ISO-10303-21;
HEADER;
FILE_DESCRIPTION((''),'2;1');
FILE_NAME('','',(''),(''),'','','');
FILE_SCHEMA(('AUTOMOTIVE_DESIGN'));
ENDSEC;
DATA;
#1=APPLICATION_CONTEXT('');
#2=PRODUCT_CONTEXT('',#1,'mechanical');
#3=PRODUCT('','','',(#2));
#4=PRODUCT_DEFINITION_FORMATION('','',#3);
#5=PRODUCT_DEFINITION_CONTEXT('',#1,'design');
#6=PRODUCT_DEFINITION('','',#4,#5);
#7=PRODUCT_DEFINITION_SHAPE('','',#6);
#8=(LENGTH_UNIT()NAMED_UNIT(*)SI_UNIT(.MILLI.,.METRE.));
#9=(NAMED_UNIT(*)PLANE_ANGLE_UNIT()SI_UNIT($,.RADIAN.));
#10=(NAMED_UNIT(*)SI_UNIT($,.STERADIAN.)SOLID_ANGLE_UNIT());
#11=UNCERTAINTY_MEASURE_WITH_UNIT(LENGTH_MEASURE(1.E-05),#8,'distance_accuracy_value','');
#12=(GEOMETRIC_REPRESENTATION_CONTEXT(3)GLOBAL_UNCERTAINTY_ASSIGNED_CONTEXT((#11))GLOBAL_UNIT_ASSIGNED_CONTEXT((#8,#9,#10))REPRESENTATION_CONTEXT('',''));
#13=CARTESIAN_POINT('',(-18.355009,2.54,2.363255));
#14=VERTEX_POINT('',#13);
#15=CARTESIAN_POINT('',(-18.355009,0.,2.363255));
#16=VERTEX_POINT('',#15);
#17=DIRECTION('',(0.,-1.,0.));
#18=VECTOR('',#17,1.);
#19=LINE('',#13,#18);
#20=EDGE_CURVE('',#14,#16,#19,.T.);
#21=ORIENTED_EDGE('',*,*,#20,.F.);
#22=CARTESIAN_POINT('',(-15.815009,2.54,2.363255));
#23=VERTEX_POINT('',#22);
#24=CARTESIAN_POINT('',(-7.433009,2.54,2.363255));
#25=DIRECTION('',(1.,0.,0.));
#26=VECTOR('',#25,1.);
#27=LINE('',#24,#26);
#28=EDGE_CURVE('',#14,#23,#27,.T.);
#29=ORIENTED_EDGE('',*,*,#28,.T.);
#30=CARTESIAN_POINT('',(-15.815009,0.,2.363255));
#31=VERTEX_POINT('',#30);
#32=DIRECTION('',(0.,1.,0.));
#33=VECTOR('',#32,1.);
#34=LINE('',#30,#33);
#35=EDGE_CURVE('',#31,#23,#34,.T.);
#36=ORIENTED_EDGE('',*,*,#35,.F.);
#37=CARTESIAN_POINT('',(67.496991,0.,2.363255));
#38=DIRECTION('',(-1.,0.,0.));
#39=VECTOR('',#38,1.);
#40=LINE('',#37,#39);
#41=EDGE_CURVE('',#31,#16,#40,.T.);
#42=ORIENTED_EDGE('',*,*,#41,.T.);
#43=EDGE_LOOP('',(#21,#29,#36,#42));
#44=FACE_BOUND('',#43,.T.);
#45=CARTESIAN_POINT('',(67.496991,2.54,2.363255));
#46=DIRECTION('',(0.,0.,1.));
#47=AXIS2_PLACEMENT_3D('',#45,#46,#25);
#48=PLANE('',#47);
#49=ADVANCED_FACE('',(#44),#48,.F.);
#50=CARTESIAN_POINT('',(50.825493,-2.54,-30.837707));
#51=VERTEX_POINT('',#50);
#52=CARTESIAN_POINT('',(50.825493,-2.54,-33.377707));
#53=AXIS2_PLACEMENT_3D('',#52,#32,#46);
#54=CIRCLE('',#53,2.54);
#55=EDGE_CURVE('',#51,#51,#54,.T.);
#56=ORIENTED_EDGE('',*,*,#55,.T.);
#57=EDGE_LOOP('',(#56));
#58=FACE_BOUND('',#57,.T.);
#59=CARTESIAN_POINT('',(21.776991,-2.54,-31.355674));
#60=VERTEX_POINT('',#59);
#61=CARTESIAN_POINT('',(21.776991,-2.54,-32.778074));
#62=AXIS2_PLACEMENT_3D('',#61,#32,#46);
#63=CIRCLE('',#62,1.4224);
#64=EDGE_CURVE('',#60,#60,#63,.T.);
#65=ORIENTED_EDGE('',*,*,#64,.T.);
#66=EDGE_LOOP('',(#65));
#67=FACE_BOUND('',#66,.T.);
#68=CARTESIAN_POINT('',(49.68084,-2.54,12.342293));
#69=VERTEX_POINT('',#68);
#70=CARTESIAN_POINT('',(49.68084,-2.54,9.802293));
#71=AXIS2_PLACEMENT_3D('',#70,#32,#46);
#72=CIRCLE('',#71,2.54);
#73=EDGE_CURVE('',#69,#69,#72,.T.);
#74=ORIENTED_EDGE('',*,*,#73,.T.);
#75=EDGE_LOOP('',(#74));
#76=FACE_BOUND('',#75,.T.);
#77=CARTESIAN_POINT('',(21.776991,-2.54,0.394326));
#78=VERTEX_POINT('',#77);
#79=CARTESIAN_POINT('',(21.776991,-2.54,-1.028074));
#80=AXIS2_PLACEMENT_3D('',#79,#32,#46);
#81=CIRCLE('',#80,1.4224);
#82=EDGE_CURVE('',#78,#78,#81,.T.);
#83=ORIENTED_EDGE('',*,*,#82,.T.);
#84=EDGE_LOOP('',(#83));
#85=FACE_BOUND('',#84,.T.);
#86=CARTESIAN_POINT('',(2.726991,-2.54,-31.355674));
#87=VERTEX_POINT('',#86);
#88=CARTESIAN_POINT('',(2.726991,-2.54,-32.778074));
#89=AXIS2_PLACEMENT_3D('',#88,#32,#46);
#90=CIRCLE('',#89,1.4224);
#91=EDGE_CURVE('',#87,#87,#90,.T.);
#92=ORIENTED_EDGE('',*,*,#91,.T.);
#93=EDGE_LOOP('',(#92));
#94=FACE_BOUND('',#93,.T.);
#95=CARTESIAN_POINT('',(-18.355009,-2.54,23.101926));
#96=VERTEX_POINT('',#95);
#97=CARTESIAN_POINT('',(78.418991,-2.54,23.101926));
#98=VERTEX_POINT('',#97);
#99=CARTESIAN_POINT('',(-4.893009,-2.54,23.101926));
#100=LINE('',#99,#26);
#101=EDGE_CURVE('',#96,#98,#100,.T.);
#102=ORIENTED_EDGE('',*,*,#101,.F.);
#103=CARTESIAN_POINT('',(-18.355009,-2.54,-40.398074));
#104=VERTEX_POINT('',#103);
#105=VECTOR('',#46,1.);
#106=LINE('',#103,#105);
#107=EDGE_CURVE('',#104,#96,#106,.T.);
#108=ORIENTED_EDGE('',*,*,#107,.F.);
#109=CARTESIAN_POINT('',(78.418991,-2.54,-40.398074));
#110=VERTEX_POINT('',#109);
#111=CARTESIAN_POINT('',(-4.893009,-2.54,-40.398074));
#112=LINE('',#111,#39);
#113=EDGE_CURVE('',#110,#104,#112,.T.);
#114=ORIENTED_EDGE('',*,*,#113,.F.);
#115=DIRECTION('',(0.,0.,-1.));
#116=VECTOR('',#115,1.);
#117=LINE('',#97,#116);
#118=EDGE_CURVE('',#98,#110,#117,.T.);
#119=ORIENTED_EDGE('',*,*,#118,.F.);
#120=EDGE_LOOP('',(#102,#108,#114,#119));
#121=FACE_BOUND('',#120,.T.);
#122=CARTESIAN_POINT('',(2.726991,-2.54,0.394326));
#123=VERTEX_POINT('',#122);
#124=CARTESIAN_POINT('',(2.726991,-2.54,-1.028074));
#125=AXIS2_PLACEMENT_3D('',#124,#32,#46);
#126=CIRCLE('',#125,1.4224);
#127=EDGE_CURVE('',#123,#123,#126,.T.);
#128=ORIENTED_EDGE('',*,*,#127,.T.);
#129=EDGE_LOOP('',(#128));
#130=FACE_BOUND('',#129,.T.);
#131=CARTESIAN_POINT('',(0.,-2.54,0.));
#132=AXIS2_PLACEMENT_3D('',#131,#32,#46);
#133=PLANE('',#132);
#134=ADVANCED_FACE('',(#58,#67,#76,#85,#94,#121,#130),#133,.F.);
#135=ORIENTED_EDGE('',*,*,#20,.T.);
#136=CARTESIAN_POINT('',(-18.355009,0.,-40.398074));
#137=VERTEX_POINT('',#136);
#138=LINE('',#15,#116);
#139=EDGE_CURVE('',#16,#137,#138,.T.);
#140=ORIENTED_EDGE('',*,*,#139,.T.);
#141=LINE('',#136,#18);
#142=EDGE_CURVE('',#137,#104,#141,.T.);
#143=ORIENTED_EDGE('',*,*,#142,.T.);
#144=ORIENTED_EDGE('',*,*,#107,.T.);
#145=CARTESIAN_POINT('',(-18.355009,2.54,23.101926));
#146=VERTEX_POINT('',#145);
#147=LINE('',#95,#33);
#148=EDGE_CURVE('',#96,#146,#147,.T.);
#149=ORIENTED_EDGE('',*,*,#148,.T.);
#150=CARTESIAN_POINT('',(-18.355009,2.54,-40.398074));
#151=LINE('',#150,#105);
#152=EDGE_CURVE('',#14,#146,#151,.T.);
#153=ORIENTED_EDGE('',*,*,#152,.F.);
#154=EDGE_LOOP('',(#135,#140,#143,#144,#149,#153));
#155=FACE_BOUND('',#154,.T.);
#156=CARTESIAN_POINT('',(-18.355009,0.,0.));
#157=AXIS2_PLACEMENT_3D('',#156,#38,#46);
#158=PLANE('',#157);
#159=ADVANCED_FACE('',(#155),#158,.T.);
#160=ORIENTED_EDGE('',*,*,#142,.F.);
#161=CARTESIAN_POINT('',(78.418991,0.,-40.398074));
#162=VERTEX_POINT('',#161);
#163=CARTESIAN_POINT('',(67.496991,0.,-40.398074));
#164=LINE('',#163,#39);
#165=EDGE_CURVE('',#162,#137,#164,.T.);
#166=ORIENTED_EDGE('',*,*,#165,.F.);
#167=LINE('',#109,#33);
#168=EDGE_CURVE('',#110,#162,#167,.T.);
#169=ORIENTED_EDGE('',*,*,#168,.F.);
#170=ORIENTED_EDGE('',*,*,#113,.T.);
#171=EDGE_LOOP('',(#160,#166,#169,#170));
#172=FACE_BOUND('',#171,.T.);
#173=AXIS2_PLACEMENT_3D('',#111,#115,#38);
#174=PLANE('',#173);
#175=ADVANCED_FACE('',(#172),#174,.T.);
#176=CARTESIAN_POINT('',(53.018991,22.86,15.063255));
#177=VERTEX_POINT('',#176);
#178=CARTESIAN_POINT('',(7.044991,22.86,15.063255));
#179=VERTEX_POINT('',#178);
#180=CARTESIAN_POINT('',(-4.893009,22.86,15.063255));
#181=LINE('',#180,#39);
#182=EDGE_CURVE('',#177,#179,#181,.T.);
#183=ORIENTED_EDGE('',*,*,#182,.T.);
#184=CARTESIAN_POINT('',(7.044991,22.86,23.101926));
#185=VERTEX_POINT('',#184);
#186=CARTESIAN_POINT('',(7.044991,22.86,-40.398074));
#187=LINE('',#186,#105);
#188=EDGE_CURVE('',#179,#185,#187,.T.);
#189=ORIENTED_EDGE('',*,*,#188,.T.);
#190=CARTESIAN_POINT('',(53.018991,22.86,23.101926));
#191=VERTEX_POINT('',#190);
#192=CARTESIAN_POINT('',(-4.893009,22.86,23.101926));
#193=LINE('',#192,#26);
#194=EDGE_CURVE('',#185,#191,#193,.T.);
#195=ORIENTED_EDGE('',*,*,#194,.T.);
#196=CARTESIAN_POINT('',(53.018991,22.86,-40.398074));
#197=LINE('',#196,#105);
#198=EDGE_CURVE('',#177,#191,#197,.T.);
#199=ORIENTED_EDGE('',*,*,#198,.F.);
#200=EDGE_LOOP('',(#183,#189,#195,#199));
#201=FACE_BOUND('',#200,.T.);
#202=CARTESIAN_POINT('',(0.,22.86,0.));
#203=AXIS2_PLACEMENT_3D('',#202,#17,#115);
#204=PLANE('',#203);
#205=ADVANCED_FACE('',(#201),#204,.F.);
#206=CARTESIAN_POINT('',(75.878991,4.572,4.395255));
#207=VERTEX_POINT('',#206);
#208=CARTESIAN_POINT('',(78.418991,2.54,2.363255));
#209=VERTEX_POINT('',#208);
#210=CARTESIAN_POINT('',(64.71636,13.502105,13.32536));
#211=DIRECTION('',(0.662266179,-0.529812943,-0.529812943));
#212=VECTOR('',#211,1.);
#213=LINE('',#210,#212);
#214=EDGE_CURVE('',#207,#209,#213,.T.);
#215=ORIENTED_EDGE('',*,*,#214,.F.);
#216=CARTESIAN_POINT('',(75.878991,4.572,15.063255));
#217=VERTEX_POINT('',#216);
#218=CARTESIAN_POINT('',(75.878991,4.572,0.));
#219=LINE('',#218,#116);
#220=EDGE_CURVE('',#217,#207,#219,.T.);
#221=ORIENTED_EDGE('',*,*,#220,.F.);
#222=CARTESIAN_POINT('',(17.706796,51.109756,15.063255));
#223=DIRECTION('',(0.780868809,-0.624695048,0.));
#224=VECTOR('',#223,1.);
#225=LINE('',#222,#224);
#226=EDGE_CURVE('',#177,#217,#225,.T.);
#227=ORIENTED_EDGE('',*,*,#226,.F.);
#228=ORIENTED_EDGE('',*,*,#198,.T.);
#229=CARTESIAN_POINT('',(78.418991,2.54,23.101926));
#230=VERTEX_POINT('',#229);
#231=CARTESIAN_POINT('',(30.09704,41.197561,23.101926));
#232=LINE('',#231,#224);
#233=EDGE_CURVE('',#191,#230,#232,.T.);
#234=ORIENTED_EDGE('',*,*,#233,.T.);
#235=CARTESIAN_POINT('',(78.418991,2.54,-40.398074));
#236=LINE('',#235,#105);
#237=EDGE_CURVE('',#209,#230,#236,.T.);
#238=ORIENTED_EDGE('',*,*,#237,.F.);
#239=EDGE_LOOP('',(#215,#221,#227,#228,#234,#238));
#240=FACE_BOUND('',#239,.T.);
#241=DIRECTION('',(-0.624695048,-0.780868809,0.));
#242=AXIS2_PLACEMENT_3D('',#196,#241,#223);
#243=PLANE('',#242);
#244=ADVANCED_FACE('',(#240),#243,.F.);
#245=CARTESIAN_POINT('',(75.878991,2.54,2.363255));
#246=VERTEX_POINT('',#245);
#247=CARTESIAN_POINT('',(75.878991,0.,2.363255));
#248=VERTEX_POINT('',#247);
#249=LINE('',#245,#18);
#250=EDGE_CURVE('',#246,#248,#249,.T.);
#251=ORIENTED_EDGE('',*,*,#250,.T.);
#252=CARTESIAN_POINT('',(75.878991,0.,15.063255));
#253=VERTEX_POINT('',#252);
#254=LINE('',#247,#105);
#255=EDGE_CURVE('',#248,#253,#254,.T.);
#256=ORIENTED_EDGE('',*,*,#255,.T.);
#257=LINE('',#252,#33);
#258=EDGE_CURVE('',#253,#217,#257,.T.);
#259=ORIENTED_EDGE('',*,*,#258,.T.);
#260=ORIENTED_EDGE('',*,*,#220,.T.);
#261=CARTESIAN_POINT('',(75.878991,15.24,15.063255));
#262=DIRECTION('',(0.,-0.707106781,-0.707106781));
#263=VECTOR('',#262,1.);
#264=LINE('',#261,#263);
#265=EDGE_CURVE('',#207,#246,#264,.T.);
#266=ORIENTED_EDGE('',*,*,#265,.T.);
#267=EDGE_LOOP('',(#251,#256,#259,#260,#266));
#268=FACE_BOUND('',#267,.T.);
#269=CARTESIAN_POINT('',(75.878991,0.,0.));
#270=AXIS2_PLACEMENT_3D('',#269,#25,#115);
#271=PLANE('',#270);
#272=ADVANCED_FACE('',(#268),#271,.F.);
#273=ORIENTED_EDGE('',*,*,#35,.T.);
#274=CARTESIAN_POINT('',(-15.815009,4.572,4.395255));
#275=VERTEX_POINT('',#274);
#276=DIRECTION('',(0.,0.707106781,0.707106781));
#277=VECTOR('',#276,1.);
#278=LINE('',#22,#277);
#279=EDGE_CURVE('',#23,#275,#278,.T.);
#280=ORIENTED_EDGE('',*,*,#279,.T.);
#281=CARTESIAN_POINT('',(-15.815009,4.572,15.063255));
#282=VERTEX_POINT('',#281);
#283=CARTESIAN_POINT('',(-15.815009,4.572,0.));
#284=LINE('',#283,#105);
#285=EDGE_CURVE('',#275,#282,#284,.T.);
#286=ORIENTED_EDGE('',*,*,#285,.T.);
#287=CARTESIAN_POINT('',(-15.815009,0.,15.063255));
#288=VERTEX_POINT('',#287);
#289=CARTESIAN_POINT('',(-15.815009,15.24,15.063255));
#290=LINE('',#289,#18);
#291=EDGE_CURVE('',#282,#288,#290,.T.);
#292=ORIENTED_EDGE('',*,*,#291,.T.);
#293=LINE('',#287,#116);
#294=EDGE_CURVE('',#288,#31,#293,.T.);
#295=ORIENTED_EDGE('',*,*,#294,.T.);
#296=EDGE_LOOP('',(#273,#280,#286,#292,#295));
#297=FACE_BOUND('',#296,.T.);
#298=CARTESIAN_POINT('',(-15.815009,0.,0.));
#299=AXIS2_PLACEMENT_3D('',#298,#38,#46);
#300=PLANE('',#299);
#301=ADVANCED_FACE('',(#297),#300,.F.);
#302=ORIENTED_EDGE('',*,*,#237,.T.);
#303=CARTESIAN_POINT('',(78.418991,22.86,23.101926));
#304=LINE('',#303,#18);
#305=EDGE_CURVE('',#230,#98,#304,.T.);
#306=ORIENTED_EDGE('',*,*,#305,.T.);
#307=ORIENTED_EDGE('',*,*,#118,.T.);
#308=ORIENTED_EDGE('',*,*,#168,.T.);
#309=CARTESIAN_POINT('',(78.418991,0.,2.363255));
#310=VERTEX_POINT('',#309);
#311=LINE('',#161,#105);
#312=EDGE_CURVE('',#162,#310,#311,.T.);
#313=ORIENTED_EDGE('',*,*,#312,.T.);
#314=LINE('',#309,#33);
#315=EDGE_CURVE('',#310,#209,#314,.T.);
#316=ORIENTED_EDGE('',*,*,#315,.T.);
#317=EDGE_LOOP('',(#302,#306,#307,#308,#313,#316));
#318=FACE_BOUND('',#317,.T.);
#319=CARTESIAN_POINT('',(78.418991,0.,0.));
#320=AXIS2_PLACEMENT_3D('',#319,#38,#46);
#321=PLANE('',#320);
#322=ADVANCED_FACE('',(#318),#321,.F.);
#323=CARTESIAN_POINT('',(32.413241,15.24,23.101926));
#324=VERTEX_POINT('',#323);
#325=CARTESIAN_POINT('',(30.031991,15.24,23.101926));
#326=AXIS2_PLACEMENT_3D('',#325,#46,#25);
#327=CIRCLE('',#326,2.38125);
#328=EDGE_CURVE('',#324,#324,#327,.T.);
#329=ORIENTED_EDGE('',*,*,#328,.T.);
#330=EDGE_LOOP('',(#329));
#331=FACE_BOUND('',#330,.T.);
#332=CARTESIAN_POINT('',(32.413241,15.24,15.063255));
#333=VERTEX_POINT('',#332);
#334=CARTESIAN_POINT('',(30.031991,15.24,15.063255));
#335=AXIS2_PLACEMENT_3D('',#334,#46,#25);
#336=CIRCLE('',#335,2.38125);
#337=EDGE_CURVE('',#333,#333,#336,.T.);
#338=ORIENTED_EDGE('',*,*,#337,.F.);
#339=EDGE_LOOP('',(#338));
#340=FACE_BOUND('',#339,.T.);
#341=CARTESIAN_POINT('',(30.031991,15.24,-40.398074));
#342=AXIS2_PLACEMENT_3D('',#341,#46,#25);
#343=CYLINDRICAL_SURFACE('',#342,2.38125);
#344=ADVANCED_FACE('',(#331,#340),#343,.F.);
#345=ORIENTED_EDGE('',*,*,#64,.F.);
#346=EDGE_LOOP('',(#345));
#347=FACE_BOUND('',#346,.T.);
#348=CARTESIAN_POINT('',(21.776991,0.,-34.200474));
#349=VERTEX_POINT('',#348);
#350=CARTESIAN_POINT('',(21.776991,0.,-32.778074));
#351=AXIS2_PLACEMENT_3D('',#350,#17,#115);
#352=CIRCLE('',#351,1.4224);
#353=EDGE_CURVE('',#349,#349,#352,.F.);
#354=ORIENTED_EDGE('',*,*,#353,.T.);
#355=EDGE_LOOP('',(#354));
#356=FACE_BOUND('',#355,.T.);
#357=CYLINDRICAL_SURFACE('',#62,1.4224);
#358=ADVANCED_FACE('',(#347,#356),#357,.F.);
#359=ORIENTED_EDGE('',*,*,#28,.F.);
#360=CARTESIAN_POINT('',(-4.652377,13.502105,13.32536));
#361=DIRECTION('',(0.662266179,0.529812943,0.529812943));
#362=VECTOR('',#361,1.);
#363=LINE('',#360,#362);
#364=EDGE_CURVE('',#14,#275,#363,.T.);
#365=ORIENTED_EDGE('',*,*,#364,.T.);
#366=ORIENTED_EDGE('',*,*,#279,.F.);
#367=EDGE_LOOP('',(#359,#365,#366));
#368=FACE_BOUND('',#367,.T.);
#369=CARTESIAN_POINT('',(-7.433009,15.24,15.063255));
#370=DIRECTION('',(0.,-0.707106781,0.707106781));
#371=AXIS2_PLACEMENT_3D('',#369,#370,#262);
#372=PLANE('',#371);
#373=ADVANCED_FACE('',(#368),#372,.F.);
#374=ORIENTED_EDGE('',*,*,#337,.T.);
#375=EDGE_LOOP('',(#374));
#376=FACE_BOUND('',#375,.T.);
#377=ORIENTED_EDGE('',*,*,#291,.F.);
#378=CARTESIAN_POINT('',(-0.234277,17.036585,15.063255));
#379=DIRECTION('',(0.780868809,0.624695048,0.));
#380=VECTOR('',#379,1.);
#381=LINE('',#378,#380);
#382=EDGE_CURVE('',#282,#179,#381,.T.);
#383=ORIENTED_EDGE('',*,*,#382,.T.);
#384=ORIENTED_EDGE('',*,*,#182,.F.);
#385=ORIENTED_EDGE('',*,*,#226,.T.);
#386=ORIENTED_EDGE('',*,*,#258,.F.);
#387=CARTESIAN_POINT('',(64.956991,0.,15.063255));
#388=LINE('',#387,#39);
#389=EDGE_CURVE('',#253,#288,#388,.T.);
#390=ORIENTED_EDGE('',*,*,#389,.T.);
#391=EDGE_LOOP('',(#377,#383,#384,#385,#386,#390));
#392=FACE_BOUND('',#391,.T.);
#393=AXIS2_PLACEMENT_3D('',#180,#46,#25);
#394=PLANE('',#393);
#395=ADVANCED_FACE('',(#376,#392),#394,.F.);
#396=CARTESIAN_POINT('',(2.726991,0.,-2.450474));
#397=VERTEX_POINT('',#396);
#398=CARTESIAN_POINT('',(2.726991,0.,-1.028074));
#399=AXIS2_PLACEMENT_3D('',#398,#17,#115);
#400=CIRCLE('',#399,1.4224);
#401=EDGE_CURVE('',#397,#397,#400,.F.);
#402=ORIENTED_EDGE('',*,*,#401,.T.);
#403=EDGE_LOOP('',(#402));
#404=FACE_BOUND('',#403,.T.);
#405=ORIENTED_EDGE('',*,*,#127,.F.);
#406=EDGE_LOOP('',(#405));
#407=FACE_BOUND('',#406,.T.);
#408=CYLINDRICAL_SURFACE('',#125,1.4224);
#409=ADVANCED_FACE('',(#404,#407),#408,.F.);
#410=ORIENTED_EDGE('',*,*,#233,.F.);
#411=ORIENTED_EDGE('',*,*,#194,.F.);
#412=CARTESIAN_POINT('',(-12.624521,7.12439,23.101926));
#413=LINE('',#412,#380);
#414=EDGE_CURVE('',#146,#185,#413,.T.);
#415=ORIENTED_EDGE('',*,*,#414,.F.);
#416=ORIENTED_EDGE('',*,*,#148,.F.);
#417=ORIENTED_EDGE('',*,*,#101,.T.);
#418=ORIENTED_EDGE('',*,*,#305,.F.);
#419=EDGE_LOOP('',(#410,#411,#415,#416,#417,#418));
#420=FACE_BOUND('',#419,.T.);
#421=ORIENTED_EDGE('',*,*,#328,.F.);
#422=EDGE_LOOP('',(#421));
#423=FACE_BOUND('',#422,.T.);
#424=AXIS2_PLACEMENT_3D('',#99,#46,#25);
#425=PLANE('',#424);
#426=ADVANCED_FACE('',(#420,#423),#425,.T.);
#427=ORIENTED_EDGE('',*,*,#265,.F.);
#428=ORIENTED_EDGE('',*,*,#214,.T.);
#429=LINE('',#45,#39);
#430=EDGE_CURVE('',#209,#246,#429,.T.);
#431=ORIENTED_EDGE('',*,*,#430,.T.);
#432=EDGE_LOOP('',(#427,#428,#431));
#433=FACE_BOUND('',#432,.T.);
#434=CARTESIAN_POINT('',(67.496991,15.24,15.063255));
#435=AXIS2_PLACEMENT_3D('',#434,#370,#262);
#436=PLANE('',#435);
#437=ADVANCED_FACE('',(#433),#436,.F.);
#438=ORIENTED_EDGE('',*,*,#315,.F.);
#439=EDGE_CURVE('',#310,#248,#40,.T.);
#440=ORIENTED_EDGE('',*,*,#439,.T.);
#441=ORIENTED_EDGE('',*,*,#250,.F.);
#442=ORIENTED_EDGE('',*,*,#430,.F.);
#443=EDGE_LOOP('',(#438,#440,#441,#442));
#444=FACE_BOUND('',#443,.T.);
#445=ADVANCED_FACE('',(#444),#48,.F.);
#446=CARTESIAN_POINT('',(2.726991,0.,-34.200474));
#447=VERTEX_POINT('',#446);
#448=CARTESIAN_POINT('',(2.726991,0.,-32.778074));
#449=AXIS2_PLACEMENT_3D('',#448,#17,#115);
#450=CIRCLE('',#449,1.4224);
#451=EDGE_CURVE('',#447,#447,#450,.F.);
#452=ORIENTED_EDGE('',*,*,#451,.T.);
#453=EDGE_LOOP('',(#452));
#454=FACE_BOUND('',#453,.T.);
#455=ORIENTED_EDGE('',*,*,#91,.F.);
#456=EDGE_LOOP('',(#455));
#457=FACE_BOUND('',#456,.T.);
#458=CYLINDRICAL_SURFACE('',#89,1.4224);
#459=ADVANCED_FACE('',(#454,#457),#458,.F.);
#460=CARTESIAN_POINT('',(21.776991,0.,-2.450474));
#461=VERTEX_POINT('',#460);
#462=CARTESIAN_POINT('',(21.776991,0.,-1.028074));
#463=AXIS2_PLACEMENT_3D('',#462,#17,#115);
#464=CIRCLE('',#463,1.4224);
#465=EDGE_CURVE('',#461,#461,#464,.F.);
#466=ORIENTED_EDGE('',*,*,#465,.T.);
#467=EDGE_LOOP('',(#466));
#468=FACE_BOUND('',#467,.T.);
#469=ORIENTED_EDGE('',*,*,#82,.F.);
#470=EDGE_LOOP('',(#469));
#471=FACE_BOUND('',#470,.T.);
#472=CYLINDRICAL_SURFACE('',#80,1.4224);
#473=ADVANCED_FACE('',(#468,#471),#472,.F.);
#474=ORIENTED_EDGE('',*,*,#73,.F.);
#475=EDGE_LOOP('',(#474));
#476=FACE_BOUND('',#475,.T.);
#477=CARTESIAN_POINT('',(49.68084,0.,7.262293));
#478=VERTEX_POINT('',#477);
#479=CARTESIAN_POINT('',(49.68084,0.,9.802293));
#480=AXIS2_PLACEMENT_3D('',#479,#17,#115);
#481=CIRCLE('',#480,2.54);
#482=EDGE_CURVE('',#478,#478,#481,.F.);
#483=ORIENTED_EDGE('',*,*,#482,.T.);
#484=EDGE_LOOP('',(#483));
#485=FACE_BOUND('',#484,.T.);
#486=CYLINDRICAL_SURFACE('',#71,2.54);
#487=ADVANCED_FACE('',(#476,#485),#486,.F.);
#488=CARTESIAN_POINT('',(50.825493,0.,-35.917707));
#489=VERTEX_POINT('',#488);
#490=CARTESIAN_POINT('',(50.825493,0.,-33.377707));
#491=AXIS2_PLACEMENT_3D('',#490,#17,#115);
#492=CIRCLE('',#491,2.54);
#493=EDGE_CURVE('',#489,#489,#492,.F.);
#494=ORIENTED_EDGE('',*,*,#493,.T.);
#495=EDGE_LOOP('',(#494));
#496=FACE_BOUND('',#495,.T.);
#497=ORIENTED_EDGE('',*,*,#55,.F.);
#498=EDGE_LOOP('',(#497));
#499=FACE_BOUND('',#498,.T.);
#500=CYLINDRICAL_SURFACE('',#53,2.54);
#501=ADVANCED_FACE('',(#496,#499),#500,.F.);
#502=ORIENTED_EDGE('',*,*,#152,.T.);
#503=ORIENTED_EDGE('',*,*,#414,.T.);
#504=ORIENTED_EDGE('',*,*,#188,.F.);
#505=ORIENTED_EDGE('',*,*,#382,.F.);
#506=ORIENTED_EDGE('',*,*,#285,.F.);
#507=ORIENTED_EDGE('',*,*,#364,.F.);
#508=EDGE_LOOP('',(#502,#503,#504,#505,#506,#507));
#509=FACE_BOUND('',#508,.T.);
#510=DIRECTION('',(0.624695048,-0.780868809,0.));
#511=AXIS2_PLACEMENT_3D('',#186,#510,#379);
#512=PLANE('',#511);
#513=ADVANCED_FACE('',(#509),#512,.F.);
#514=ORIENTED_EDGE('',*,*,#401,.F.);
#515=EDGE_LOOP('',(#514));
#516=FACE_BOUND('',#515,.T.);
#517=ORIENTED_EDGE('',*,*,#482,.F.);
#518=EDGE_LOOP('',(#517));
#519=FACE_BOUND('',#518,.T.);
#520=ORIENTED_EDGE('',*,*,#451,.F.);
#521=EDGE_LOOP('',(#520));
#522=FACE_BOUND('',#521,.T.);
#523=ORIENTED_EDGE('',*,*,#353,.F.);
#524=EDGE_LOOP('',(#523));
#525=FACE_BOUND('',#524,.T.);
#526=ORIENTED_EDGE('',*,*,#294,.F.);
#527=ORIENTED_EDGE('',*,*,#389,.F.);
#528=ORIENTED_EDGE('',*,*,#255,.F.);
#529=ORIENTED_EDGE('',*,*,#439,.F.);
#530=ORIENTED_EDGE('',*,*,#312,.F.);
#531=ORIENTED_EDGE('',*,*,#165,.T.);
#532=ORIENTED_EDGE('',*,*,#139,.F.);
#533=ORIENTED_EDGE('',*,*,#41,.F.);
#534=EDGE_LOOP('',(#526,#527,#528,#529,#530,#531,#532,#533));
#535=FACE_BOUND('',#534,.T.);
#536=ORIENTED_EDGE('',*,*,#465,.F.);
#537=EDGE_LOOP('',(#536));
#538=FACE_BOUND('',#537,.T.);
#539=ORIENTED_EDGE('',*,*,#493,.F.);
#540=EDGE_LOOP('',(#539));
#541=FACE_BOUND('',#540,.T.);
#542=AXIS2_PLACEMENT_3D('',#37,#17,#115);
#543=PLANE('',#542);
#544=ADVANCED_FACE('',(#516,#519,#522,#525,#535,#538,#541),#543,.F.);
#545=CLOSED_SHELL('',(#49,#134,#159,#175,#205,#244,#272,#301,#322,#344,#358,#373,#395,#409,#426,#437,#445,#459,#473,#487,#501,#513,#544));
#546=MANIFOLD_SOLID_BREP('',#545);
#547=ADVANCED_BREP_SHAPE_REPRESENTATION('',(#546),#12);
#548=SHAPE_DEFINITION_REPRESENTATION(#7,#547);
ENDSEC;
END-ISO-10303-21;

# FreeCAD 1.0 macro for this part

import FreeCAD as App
import Part
import Sketcher
Q = App.Units.Quantity

doc = App.newDocument("Part")
body = doc.addObject("PartDesign::Body", "Body")

# Sketch on XZ plane
sketch1 = doc.addObject("Sketcher::SketchObject", "Sketch")
body.addObject(sketch1)
sketch1.AttachmentSupport = (doc.XZ_Plane, [""])
sketch1.MapMode = "FlatFace"
sketch1.addGeometry([
    Part.LineSegment(App.Vector(-4.9, -40.4, 0), App.Vector(-4.9, 23.1, 0)),  # 0
    Part.LineSegment(App.Vector(-4.9, 23.1, 0), App.Vector(65, 23.1, 0)),  # 1
    Part.LineSegment(App.Vector(65, 23.1, 0), App.Vector(65, -40.4, 0)),  # 2
    Part.LineSegment(App.Vector(65, -40.4, 0), App.Vector(-4.9, -40.4, 0)),  # 3
    Part.Circle(App.Vector(2.7, -1, 0), App.Vector(0, 0, 1), 1.4),  # 4
    Part.Circle(App.Vector(21.8, -1, 0), App.Vector(0, 0, 1), 1.4),  # 5
    Part.Circle(App.Vector(49.7, 9.8, 0), App.Vector(0, 0, 1), 2.5),  # 6
    Part.Circle(App.Vector(2.7, -32.8, 0), App.Vector(0, 0, 1), 1.4),  # 7
    Part.Circle(App.Vector(21.8, -32.8, 0), App.Vector(0, 0, 1), 1.4),  # 8
    Part.Circle(App.Vector(50.8, -33.4, 0), App.Vector(0, 0, 1), 2.5),  # 9
], False)
sketch1.addConstraint([
    Sketcher.Constraint("Coincident", 0, 2, 1, 1),
    Sketcher.Constraint("Coincident", 1, 2, 2, 1),
    Sketcher.Constraint("Coincident", 2, 2, 3, 1),
    Sketcher.Constraint("Coincident", 3, 2, 0, 1),
    Sketcher.Constraint("Vertical", 0),
    Sketcher.Constraint("Horizontal", 1),
    Sketcher.Constraint("Vertical", 2),
    Sketcher.Constraint("Horizontal", 3),
    Sketcher.Constraint("Equal", 4, 5),
    Sketcher.Constraint("Equal", 5, 7),
    Sketcher.Constraint("Equal", 7, 8),
    Sketcher.Constraint("Equal", 6, 9),
    Sketcher.Constraint("Horizontal", 4, 3, 5, 3),
    Sketcher.Constraint("Horizontal", 7, 3, 8, 3),
    Sketcher.Constraint("Vertical", 4, 3, 7, 3),
    Sketcher.Constraint("Vertical", 5, 3, 8, 3),
    Sketcher.Constraint("Diameter", 6, Q("0.2 in")),
    Sketcher.Constraint("Diameter", 4, Q("0.112 in")),
    Sketcher.Constraint("DistanceY", 0, 1, 0, 2, Q("2.5 in")),
    Sketcher.Constraint("DistanceX", 1, 1, 1, 2, Q("2.75 in")),
    Sketcher.Constraint("DistanceY", 9, 3, 6, 3, Q("1.7 in")),
    Sketcher.Constraint("DistanceX", 0, 2, 4, 3, Q("0.3 in")),
    Sketcher.Constraint("DistanceY", 7, 3, 0, 2, Q("2.2 in")),
    Sketcher.Constraint("DistanceX", 5, 3, 1, 2, Q("1.7 in")),
    Sketcher.Constraint("DistanceY", 7, 3, 4, 3, Q("1.25 in")),
    Sketcher.Constraint("DistanceX", 8, 3, 9, 3, 29.048502),
    Sketcher.Constraint("DistanceX", -1, 1, 4, 3, 2.726991),
    Sketcher.Constraint("DistanceX", -1, 1, 6, 3, 49.68084),
    Sketcher.Constraint("DistanceY", 4, 3, -1, 1, 1.028074),
    Sketcher.Constraint("DistanceY", -1, 1, 6, 3, 9.802293),
])
pad1 = doc.addObject("PartDesign::Pad", "Pad")
body.addObject(pad1)
pad1.Profile = sketch1
pad1.Type = "TwoLengths"
pad1.Length = Q("0.1 in")
pad1.Length2 = Q("0.1 in")
pad1.Reversed = True

# Sketch on XZ plane
sketch2 = doc.addObject("Sketcher::SketchObject", "Sketch001")
body.addObject(sketch2)
sketch2.AttachmentSupport = (doc.XZ_Plane, [""])
sketch2.MapMode = "FlatFace"
sketch2.AttachmentOffset = App.Placement(App.Vector(0, 0, -0.1 * 25.4), App.Rotation())
sketch2.addGeometry([
    Part.LineSegment(App.Vector(-5, 15, 0), App.Vector(-5, 23, 0)),
    Part.LineSegment(App.Vector(-5, 23, 0), App.Vector(65, 23, 0)),
    Part.LineSegment(App.Vector(65, 23, 0), App.Vector(65, 15, 0)),
    Part.LineSegment(App.Vector(65, 15, 0), App.Vector(-5, 15, 0)),
], False)
sketch2.addConstraint([
    Sketcher.Constraint("Coincident", 0, 2, 1, 1),
    Sketcher.Constraint("Coincident", 1, 2, 2, 1),
    Sketcher.Constraint("Coincident", 2, 2, 3, 1),
    Sketcher.Constraint("Coincident", 3, 2, 0, 1),
    Sketcher.Constraint("Vertical", 0),
    Sketcher.Constraint("Horizontal", 1),
    Sketcher.Constraint("Vertical", 2),
    Sketcher.Constraint("Horizontal", 3),
    Sketcher.Constraint("DistanceX", 1, 1, 1, 2, Q("2.75 in")),
    Sketcher.Constraint("DistanceY", 0, 1, 0, 2, 8.038671),
    Sketcher.Constraint("DistanceX", 0, 2, -1, 1, 4.893009),
    Sketcher.Constraint("DistanceY", -1, 1, 0, 2, 23.101926),
])
pad2 = doc.addObject("PartDesign::Pad", "Pad001")
body.addObject(pad2)
pad2.Profile = sketch2
pad2.Length = Q("0.8 in")
pad2.Reversed = True

# Sketch on YZ plane
sketch3 = doc.addObject("Sketcher::SketchObject", "Sketch002")
body.addObject(sketch3)
sketch3.AttachmentSupport = (doc.YZ_Plane, [""])
sketch3.MapMode = "FlatFace"
sketch3.AttachmentOffset = App.Placement(App.Vector(0, 0, -4.893009), App.Rotation())
sketch3.addGeometry([
    Part.LineSegment(App.Vector(15, 15, 0), App.Vector(3, 2, 0)),  # 0
    Part.LineSegment(App.Vector(3, 2, 0), App.Vector(3, -40, 0)),  # 1
    Part.LineSegment(App.Vector(3, -40, 0), App.Vector(-3, -40, 0)),  # 2
    Part.LineSegment(App.Vector(-3, -40, 0), App.Vector(-3, 23, 0)),  # 3
    Part.LineSegment(App.Vector(-3, 23, 0), App.Vector(23, 23, 0)),  # 4
    Part.LineSegment(App.Vector(23, 23, 0), App.Vector(23, 15, 0)),  # 5
    Part.LineSegment(App.Vector(23, 15, 0), App.Vector(15, 15, 0)),  # 6
], False)
sketch3.addConstraint([
    Sketcher.Constraint("Coincident", 0, 2, 1, 1),
    Sketcher.Constraint("Coincident", 1, 2, 2, 1),
    Sketcher.Constraint("Coincident", 2, 2, 3, 1),
    Sketcher.Constraint("Coincident", 3, 2, 4, 1),
    Sketcher.Constraint("Coincident", 4, 2, 5, 1),
    Sketcher.Constraint("Coincident", 5, 2, 6, 1),
    Sketcher.Constraint("Coincident", 6, 2, 0, 1),
    Sketcher.Constraint("Vertical", 1),
    Sketcher.Constraint("Horizontal", 2),
    Sketcher.Constraint("Vertical", 3),
    Sketcher.Constraint("Horizontal", 4),
    Sketcher.Constraint("Vertical", 5),
    Sketcher.Constraint("Horizontal", 6),
    Sketcher.Constraint("DistanceX", 4, 1, 4, 2, Q("1 in")),
    Sketcher.Constraint("DistanceX", 2, 2, 2, 1, Q("0.2 in")),
    Sketcher.Constraint("DistanceX", 6, 2, 6, 1, Q("0.3 in")),
    Sketcher.Constraint("DistanceY", 3, 1, 3, 2, Q("2.5 in")),
    Sketcher.Constraint("Angle", 0, Q("-135 deg")),
    Sketcher.Constraint("DistanceX", -1, 1, 0, 2, Q("0.1 in")),
    Sketcher.Constraint("DistanceY", 1, 2, 1, 1, 42.761329),
    Sketcher.Constraint("DistanceY", -1, 1, 0, 2, 2.363255),
])
pad3 = doc.addObject("PartDesign::Pad", "Pad002")
body.addObject(pad3)
pad3.Profile = sketch3
pad3.Length = Q("0.1 in")
pad3.Reversed = True

# Sketch on YZ plane
sketch4 = doc.addObject("Sketcher::SketchObject", "Sketch003")
body.addObject(sketch4)
sketch4.AttachmentSupport = (doc.YZ_Plane, [""])
sketch4.MapMode = "FlatFace"
sketch4.AttachmentOffset = App.Placement(App.Vector(0, 0, 64.956991), App.Rotation())
sketch4.addGeometry([
    Part.LineSegment(App.Vector(3, 2, 0), App.Vector(15, 15, 0)),  # 0
    Part.LineSegment(App.Vector(15, 15, 0), App.Vector(23, 15, 0)),  # 1
    Part.LineSegment(App.Vector(23, 15, 0), App.Vector(23, 23, 0)),  # 2
    Part.LineSegment(App.Vector(23, 23, 0), App.Vector(-3, 23, 0)),  # 3
    Part.LineSegment(App.Vector(-3, 23, 0), App.Vector(-3, -40, 0)),  # 4
    Part.LineSegment(App.Vector(-3, -40, 0), App.Vector(3, -40, 0)),  # 5
    Part.LineSegment(App.Vector(3, -40, 0), App.Vector(3, 2, 0)),  # 6
], False)
sketch4.addConstraint([
    Sketcher.Constraint("Coincident", 0, 2, 1, 1),
    Sketcher.Constraint("Coincident", 1, 2, 2, 1),
    Sketcher.Constraint("Coincident", 2, 2, 3, 1),
    Sketcher.Constraint("Coincident", 3, 2, 4, 1),
    Sketcher.Constraint("Coincident", 4, 2, 5, 1),
    Sketcher.Constraint("Coincident", 5, 2, 6, 1),
    Sketcher.Constraint("Coincident", 6, 2, 0, 1),
    Sketcher.Constraint("Horizontal", 1),
    Sketcher.Constraint("Vertical", 2),
    Sketcher.Constraint("Horizontal", 3),
    Sketcher.Constraint("Vertical", 4),
    Sketcher.Constraint("Horizontal", 5),
    Sketcher.Constraint("Vertical", 6),
    Sketcher.Constraint("DistanceX", 3, 2, 3, 1, Q("1 in")),
    Sketcher.Constraint("DistanceX", 1, 1, 1, 2, Q("0.3 in")),
    Sketcher.Constraint("DistanceX", 5, 1, 5, 2, Q("0.2 in")),
    Sketcher.Constraint("DistanceY", 4, 2, 4, 1, Q("2.5 in")),
    Sketcher.Constraint("Angle", 0, Q("45 deg")),
    Sketcher.Constraint("DistanceX", -1, 1, 0, 2, Q("0.6 in")),
    Sketcher.Constraint("DistanceY", 2, 1, 2, 2, 8.038671),
    Sketcher.Constraint("DistanceY", -1, 1, 0, 2, 15.063255),
])
pad4 = doc.addObject("PartDesign::Pad", "Pad003")
body.addObject(pad4)
pad4.Profile = sketch4
pad4.Length = Q("0.1 in")

# Sketch on YZ plane
sketch5 = doc.addObject("Sketcher::SketchObject", "Sketch004")
body.addObject(sketch5)
sketch5.AttachmentSupport = (doc.YZ_Plane, [""])
sketch5.MapMode = "FlatFace"
sketch5.AttachmentOffset = App.Placement(App.Vector(0, 0, -7.433009), App.Rotation())
sketch5.addGeometry([
    Part.LineSegment(App.Vector(2.5, -40.4, 0), App.Vector(0, -40.4, 0)),
    Part.LineSegment(App.Vector(0, -40.4, 0), App.Vector(0, 2.4, 0)),
    Part.LineSegment(App.Vector(0, 2.4, 0), App.Vector(2.5, 2.4, 0)),
    Part.LineSegment(App.Vector(2.5, 2.4, 0), App.Vector(2.5, -40.4, 0)),
], False)
sketch5.addConstraint([
    Sketcher.Constraint("Coincident", 0, 2, 1, 1),
    Sketcher.Constraint("Coincident", 1, 2, 2, 1),
    Sketcher.Constraint("Coincident", 2, 2, 3, 1),
    Sketcher.Constraint("Coincident", 3, 2, 0, 1),
    Sketcher.Constraint("Horizontal", 0),
    Sketcher.Constraint("Vertical", 1),
    Sketcher.Constraint("Horizontal", 2),
    Sketcher.Constraint("Vertical", 3),
    Sketcher.Constraint("PointOnObject", 0, 2, -2),
    Sketcher.Constraint("DistanceX", 0, 2, 0, 1, Q("0.1 in")),
    Sketcher.Constraint("DistanceY", 1, 1, 1, 2, 42.761329),
    Sketcher.Constraint("DistanceY", 0, 2, -1, 1, 40.398074),
])
pocket1 = doc.addObject("PartDesign::Pocket", "Pocket")
body.addObject(pocket1)
pocket1.Profile = sketch5
pocket1.Type = "ThroughAll"
pocket1.Reversed = True

# Sketch on XY plane
sketch6 = doc.addObject("Sketcher::SketchObject", "Sketch005")
body.addObject(sketch6)
sketch6.AttachmentSupport = (doc.XY_Plane, [""])
sketch6.MapMode = "FlatFace"
sketch6.AttachmentOffset = App.Placement(App.Vector(0, 0, 2.363255), App.Rotation())
sketch6.addGeometry([
    Part.LineSegment(App.Vector(65, 2.5, 0), App.Vector(65, 0, 0)),
    Part.LineSegment(App.Vector(65, 0, 0), App.Vector(-4.9, 0, 0)),
    Part.LineSegment(App.Vector(-4.9, 0, 0), App.Vector(-4.9, 2.5, 0)),
    Part.LineSegment(App.Vector(-4.9, 2.5, 0), App.Vector(65, 2.5, 0)),
], False)
sketch6.addConstraint([
    Sketcher.Constraint("Coincident", 0, 2, 1, 1),
    Sketcher.Constraint("Coincident", 1, 2, 2, 1),
    Sketcher.Constraint("Coincident", 2, 2, 3, 1),
    Sketcher.Constraint("Coincident", 3, 2, 0, 1),
    Sketcher.Constraint("Vertical", 0),
    Sketcher.Constraint("Horizontal", 1),
    Sketcher.Constraint("Vertical", 2),
    Sketcher.Constraint("Horizontal", 3),
    Sketcher.Constraint("PointOnObject", 0, 2, -1),
    Sketcher.Constraint("DistanceY", 0, 2, 0, 1, Q("0.1 in")),
    Sketcher.Constraint("DistanceX", 1, 2, 1, 1, Q("2.75 in")),
    Sketcher.Constraint("DistanceX", -1, 1, 0, 2, 64.956991),
])
pad5 = doc.addObject("PartDesign::Pad", "Pad004")
body.addObject(pad5)
pad5.Profile = sketch6
pad5.Length = Q("0.5 in")

# Sketch on XY plane
sketch7 = doc.addObject("Sketcher::SketchObject", "Sketch006")
body.addObject(sketch7)
sketch7.AttachmentSupport = (doc.XY_Plane, [""])
sketch7.MapMode = "FlatFace"
sketch7.AttachmentOffset = App.Placement(App.Vector(0, 0, 2.363255), App.Rotation())
sketch7.addGeometry([
    Part.LineSegment(App.Vector(65, 2.5, 0), App.Vector(65, 0, 0)),
    Part.LineSegment(App.Vector(65, 0, 0), App.Vector(-4.9, 0, 0)),
    Part.LineSegment(App.Vector(-4.9, 0, 0), App.Vector(-4.9, 2.5, 0)),
    Part.LineSegment(App.Vector(-4.9, 2.5, 0), App.Vector(65, 2.5, 0)),
], False)
sketch7.addConstraint([
    Sketcher.Constraint("Coincident", 0, 2, 1, 1),
    Sketcher.Constraint("Coincident", 1, 2, 2, 1),
    Sketcher.Constraint("Coincident", 2, 2, 3, 1),
    Sketcher.Constraint("Coincident", 3, 2, 0, 1),
    Sketcher.Constraint("Vertical", 0),
    Sketcher.Constraint("Horizontal", 1),
    Sketcher.Constraint("Vertical", 2),
    Sketcher.Constraint("Horizontal", 3),
    Sketcher.Constraint("PointOnObject", 0, 2, -1),
    Sketcher.Constraint("DistanceY", 0, 2, 0, 1, Q("0.1 in")),
    Sketcher.Constraint("DistanceX", 1, 2, 1, 1, Q("2.75 in")),
    Sketcher.Constraint("DistanceX", -1, 1, 0, 2, 64.956991),
])
pocket2 = doc.addObject("PartDesign::Pocket", "Pocket001")
body.addObject(pocket2)
pocket2.Profile = sketch7
pocket2.Length = Q("0.5 in")
pocket2.Reversed = True

# Sketch on XY plane
sketch8 = doc.addObject("Sketcher::SketchObject", "Sketch007")
body.addObject(sketch8)
sketch8.AttachmentSupport = (doc.XY_Plane, [""])
sketch8.MapMode = "FlatFace"
sketch8.AttachmentOffset = App.Placement(App.Vector(0, 0, 23.101926), App.Rotation())
sketch8.addGeometry(Part.Circle(App.Vector(30, 15.2, 0), App.Vector(0, 0, 1), 2.4), False)
sketch8.addConstraint([
    Sketcher.Constraint("Diameter", 0, Q("0.1875 in")),
    Sketcher.Constraint("DistanceY", -1, 1, 0, 3, Q("0.6 in")),
    Sketcher.Constraint("DistanceX", -1, 1, 0, 3, 30.031991),
])
pocket3 = doc.addObject("PartDesign::Pocket", "Pocket002")
body.addObject(pocket3)
pocket3.Profile = sketch8
pocket3.Type = "ThroughAll"

# Sketch on YZ plane
sketch9 = doc.addObject("Sketcher::SketchObject", "Sketch008")
body.addObject(sketch9)
sketch9.AttachmentSupport = (doc.YZ_Plane, [""])
sketch9.MapMode = "FlatFace"
sketch9.AttachmentOffset = App.Placement(App.Vector(0, 0, 67.496991), App.Rotation())
sketch9.addGeometry([
    Part.LineSegment(App.Vector(0, 2.4, 0), App.Vector(2.5, 2.4, 0)),  # 0
    Part.LineSegment(App.Vector(2.5, 2.4, 0), App.Vector(15.2, 15.1, 0)),  # 1
    Part.LineSegment(App.Vector(15.2, 15.1, 0), App.Vector(22.9, 15.1, 0)),  # 2
    Part.LineSegment(App.Vector(22.9, 15.1, 0), App.Vector(22.9, 23.1, 0)),  # 3
    Part.LineSegment(App.Vector(22.9, 23.1, 0), App.Vector(-2.5, 23.1, 0)),  # 4
    Part.LineSegment(App.Vector(-2.5, 23.1, 0), App.Vector(-2.5, -40.4, 0)),  # 5
    Part.LineSegment(App.Vector(-2.5, -40.4, 0), App.Vector(0, -40.4, 0)),  # 6
    Part.LineSegment(App.Vector(0, -40.4, 0), App.Vector(0, 2.4, 0)),  # 7
], False)
sketch9.addConstraint([
    Sketcher.Constraint("Coincident", 0, 2, 1, 1),
    Sketcher.Constraint("Coincident", 1, 2, 2, 1),
    Sketcher.Constraint("Coincident", 2, 2, 3, 1),
    Sketcher.Constraint("Coincident", 3, 2, 4, 1),
    Sketcher.Constraint("Coincident", 4, 2, 5, 1),
    Sketcher.Constraint("Coincident", 5, 2, 6, 1),
    Sketcher.Constraint("Coincident", 6, 2, 7, 1),
    Sketcher.Constraint("Coincident", 7, 2, 0, 1),
    Sketcher.Constraint("Horizontal", 0),
    Sketcher.Constraint("Horizontal", 2),
    Sketcher.Constraint("Vertical", 3),
    Sketcher.Constraint("Horizontal", 4),
    Sketcher.Constraint("Vertical", 5),
    Sketcher.Constraint("Horizontal", 6),
    Sketcher.Constraint("Vertical", 7),
    Sketcher.Constraint("PointOnObject", 6, 2, -2),
    Sketcher.Constraint("Equal", 0, 6),
    Sketcher.Constraint("DistanceX", 4, 2, 4, 1, Q("1 in")),
    Sketcher.Constraint("DistanceX", 0, 1, 0, 2, Q("0.1 in")),
    Sketcher.Constraint("DistanceX", 2, 1, 2, 2, Q("0.3 in")),
    Sketcher.Constraint("DistanceY", 5, 2, 5, 1, Q("2.5 in")),
    Sketcher.Constraint("Angle", 1, Q("45 deg")),
    Sketcher.Constraint("DistanceY", 3, 1, 3, 2, 8.038671),
    Sketcher.Constraint("DistanceY", -1, 1, 0, 2, 2.363255),
])
pad6 = doc.addObject("PartDesign::Pad", "Pad005")
body.addObject(pad6)
pad6.Profile = sketch9
pad6.Length = Q("0.43 in")

# Sketch on YZ plane
sketch10 = doc.addObject("Sketcher::SketchObject", "Sketch009")
body.addObject(sketch10)
sketch10.AttachmentSupport = (doc.YZ_Plane, [""])
sketch10.MapMode = "FlatFace"
sketch10.AttachmentOffset = App.Placement(App.Vector(0, 0, -7.433009), App.Rotation())
sketch10.addGeometry([
    Part.LineSegment(App.Vector(2.5, 2.4, 0), App.Vector(0, 2.4, 0)),  # 0
    Part.LineSegment(App.Vector(0, 2.4, 0), App.Vector(0, -40.4, 0)),  # 1
    Part.LineSegment(App.Vector(0, -40.4, 0), App.Vector(-2.5, -40.4, 0)),  # 2
    Part.LineSegment(App.Vector(-2.5, -40.4, 0), App.Vector(-2.5, 23.1, 0)),  # 3
    Part.LineSegment(App.Vector(-2.5, 23.1, 0), App.Vector(22.9, 23.1, 0)),  # 4
    Part.LineSegment(App.Vector(22.9, 23.1, 0), App.Vector(22.9, 15.1, 0)),  # 5
    Part.LineSegment(App.Vector(22.9, 15.1, 0), App.Vector(15.2, 15.1, 0)),  # 6
    Part.LineSegment(App.Vector(15.2, 15.1, 0), App.Vector(2.5, 2.4, 0)),  # 7
], False)
sketch10.addConstraint([
    Sketcher.Constraint("Coincident", 0, 2, 1, 1),
    Sketcher.Constraint("Coincident", 1, 2, 2, 1),
    Sketcher.Constraint("Coincident", 2, 2, 3, 1),
    Sketcher.Constraint("Coincident", 3, 2, 4, 1),
    Sketcher.Constraint("Coincident", 4, 2, 5, 1),
    Sketcher.Constraint("Coincident", 5, 2, 6, 1),
    Sketcher.Constraint("Coincident", 6, 2, 7, 1),
    Sketcher.Constraint("Coincident", 7, 2, 0, 1),
    Sketcher.Constraint("Horizontal", 0),
    Sketcher.Constraint("Vertical", 1),
    Sketcher.Constraint("Horizontal", 2),
    Sketcher.Constraint("Vertical", 3),
    Sketcher.Constraint("Horizontal", 4),
    Sketcher.Constraint("Vertical", 5),
    Sketcher.Constraint("Horizontal", 6),
    Sketcher.Constraint("PointOnObject", 0, 2, -2),
    Sketcher.Constraint("Equal", 0, 2),
    Sketcher.Constraint("DistanceX", 4, 1, 4, 2, Q("1 in")),
    Sketcher.Constraint("DistanceX", 0, 2, 0, 1, Q("0.1 in")),
    Sketcher.Constraint("DistanceX", 6, 2, 6, 1, Q("0.3 in")),
    Sketcher.Constraint("DistanceY", 3, 1, 3, 2, Q("2.5 in")),
    Sketcher.Constraint("Angle", 7, Q("-135 deg")),
    Sketcher.Constraint("DistanceY", 1, 2, 1, 1, 42.761329),
    Sketcher.Constraint("DistanceY", -1, 1, 0, 2, 2.363255),
])
pad7 = doc.addObject("PartDesign::Pad", "Pad006")
body.addObject(pad7)
pad7.Profile = sketch10
pad7.Length = Q("0.43 in")
pad7.Reversed = True

# Sketch on YZ plane
sketch11 = doc.addObject("Sketcher::SketchObject", "Sketch010")
body.addObject(sketch11)
sketch11.AttachmentSupport = (doc.YZ_Plane, [""])
sketch11.MapMode = "FlatFace"
sketch11.AttachmentOffset = App.Placement(App.Vector(0, 0, 64.956991), App.Rotation())
sketch11.addGeometry([
    Part.LineSegment(App.Vector(15.2, 15.1, 0), App.Vector(2.5, 2.4, 0)),
    Part.LineSegment(App.Vector(2.5, 2.4, 0), App.Vector(0, 2.4, 0)),
    Part.LineSegment(App.Vector(0, 2.4, 0), App.Vector(0, 15.1, 0)),
    Part.LineSegment(App.Vector(0, 15.1, 0), App.Vector(15.2, 15.1, 0)),
], False)
sketch11.addConstraint([
    Sketcher.Constraint("Coincident", 0, 2, 1, 1),
    Sketcher.Constraint("Coincident", 1, 2, 2, 1),
    Sketcher.Constraint("Coincident", 2, 2, 3, 1),
    Sketcher.Constraint("Coincident", 3, 2, 0, 1),
    Sketcher.Constraint("Horizontal", 1),
    Sketcher.Constraint("Vertical", 2),
    Sketcher.Constraint("Horizontal", 3),
    Sketcher.Constraint("PointOnObject", 1, 2, -2),
    Sketcher.Constraint("DistanceX", 1, 2, 1, 1, Q("0.1 in")),
    Sketcher.Constraint("DistanceX", 3, 1, 3, 2, Q("0.6 in")),
    Sketcher.Constraint("DistanceY", 2, 1, 2, 2, Q("0.5 in")),
    Sketcher.Constraint("DistanceY", -1, 1, 0, 2, 2.363255),
])
pocket4 = doc.addObject("PartDesign::Pocket", "Pocket003")
body.addObject(pocket4)
pocket4.Profile = sketch11
pocket4.Length = Q("0.43 in")
pocket4.Reversed = True

# Sketch on YZ plane
sketch12 = doc.addObject("Sketcher::SketchObject", "Sketch011")
body.addObject(sketch12)
sketch12.AttachmentSupport = (doc.YZ_Plane, [""])
sketch12.MapMode = "FlatFace"
sketch12.AttachmentOffset = App.Placement(App.Vector(0, 0, -4.893009), App.Rotation())
sketch12.addGeometry([
    Part.LineSegment(App.Vector(2.5, 2.4, 0), App.Vector(15.2, 15.1, 0)),
    Part.LineSegment(App.Vector(15.2, 15.1, 0), App.Vector(0, 15.1, 0)),
    Part.LineSegment(App.Vector(0, 15.1, 0), App.Vector(0, 2.4, 0)),
    Part.LineSegment(App.Vector(0, 2.4, 0), App.Vector(2.5, 2.4, 0)),
], False)
sketch12.addConstraint([
    Sketcher.Constraint("Coincident", 0, 2, 1, 1),
    Sketcher.Constraint("Coincident", 1, 2, 2, 1),
    Sketcher.Constraint("Coincident", 2, 2, 3, 1),
    Sketcher.Constraint("Coincident", 3, 2, 0, 1),
    Sketcher.Constraint("Horizontal", 1),
    Sketcher.Constraint("Vertical", 2),
    Sketcher.Constraint("Horizontal", 3),
    Sketcher.Constraint("PointOnObject", 1, 2, -2),
    Sketcher.Constraint("DistanceX", 1, 2, 1, 1, Q("0.6 in")),
    Sketcher.Constraint("DistanceX", 3, 1, 3, 2, Q("0.1 in")),
    Sketcher.Constraint("DistanceY", 2, 2, 2, 1, Q("0.5 in")),
    Sketcher.Constraint("DistanceY", -1, 1, 0, 2, 15.063255),
])
pocket5 = doc.addObject("PartDesign::Pocket", "Pocket004")
body.addObject(pocket5)
pocket5.Profile = sketch12
pocket5.Length = Q("0.43 in")

# Sketch on XY plane
sketch13 = doc.addObject("Sketcher::SketchObject", "Sketch012")
body.addObject(sketch13)
sketch13.AttachmentSupport = (doc.XY_Plane, [""])
sketch13.MapMode = "FlatFace"
sketch13.AttachmentOffset = App.Placement(App.Vector(0, 0, 23.101926), App.Rotation())
sketch13.addGeometry([
    Part.LineSegment(App.Vector(78, 23, 0), App.Vector(53, 23, 0)),  # 0
    Part.LineSegment(App.Vector(53, 23, 0), App.Vector(78, 3, 0)),  # 1
    Part.LineSegment(App.Vector(78, 3, 0), App.Vector(78, 23, 0)),  # 2
    Part.LineSegment(App.Vector(7, 23, 0), App.Vector(-18, 23, 0)),  # 3
    Part.LineSegment(App.Vector(-18, 23, 0), App.Vector(-18, 3, 0)),  # 4
    Part.LineSegment(App.Vector(-18, 3, 0), App.Vector(7, 23, 0)),  # 5
], False)
sketch13.addConstraint([
    Sketcher.Constraint("Coincident", 0, 2, 1, 1),
    Sketcher.Constraint("Coincident", 1, 2, 2, 1),
    Sketcher.Constraint("Coincident", 2, 2, 0, 1),
    Sketcher.Constraint("Coincident", 3, 2, 4, 1),
    Sketcher.Constraint("Coincident", 4, 2, 5, 1),
    Sketcher.Constraint("Coincident", 5, 2, 3, 1),
    Sketcher.Constraint("Horizontal", 0),
    Sketcher.Constraint("Vertical", 2),
    Sketcher.Constraint("Horizontal", 3),
    Sketcher.Constraint("Vertical", 4),
    Sketcher.Constraint("Horizontal", 2, 2, 3, 2),
    Sketcher.Constraint("Horizontal", 1, 2, 4, 2),
    Sketcher.Constraint("Equal", 0, 3),
    Sketcher.Constraint("DistanceX", 0, 2, 0, 1, Q("1 in")),
    Sketcher.Constraint("DistanceY", 2, 1, 2, 2, Q("0.8 in")),
    Sketcher.Constraint("DistanceY", -1, 1, 0, 2, Q("0.9 in")),
    Sketcher.Constraint("DistanceX", 3, 2, 0, 2, Q("2.81 in")),
    Sketcher.Constraint("DistanceX", -1, 1, 0, 2, 53.018991),
])
pocket6 = doc.addObject("PartDesign::Pocket", "Pocket005")
body.addObject(pocket6)
pocket6.Profile = sketch13
pocket6.Type = "ThroughAll"
pocket6.Midplane = True

doc.recompute()
